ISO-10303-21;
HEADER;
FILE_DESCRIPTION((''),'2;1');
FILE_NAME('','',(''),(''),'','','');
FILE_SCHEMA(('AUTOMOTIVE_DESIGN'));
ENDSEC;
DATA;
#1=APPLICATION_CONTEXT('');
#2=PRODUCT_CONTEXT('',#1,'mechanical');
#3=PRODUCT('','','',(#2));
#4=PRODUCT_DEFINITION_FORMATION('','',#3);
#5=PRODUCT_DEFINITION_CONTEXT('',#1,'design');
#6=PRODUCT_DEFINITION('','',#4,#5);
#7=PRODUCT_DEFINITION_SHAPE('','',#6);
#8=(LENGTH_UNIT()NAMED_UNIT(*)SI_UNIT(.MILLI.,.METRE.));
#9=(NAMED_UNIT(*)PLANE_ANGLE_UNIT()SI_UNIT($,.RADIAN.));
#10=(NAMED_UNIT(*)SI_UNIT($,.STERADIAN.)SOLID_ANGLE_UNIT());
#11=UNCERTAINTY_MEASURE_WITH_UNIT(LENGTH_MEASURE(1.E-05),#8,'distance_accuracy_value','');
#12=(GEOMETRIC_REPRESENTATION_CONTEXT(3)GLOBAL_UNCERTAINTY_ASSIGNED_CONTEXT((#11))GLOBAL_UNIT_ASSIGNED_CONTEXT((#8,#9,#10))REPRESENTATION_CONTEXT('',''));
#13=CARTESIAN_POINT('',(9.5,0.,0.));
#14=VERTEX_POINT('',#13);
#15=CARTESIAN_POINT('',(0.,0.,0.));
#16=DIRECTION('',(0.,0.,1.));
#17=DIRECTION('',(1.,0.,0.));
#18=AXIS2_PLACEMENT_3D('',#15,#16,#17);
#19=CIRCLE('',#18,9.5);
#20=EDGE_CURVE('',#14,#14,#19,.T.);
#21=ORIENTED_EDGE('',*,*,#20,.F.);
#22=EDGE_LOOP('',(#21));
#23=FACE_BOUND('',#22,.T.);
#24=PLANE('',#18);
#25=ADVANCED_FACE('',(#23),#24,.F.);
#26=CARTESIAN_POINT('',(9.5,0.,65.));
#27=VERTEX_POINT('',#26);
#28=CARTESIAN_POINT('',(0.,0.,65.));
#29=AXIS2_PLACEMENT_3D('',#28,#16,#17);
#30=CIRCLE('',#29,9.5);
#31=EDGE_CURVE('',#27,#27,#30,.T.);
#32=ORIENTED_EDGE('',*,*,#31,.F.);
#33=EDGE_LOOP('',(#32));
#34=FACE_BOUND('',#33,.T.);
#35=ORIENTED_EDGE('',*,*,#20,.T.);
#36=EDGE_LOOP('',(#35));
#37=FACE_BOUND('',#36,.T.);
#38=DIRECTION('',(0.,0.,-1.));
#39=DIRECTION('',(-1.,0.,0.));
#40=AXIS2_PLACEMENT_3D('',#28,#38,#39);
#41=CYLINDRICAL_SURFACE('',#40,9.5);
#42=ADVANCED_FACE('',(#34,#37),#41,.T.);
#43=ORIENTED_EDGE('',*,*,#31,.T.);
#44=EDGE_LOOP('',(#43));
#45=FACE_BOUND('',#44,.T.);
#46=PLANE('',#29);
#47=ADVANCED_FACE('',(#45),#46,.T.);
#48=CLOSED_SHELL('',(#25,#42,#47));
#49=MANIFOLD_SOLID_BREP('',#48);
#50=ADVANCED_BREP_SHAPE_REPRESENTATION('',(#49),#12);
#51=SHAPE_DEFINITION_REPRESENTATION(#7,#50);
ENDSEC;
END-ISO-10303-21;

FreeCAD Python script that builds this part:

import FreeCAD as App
import Part
import Sketcher
from FreeCAD import Vector

doc = App.newDocument("Part")
body = doc.addObject("PartDesign::Body", "Body")

sketch1 = body.newObject("Sketcher::SketchObject", "Sketch")
sketch1.AttachmentSupport = (doc.getObject("XY_Plane"), [""])
sketch1.MapMode = "FlatFace"
sketch1.addGeometry(Part.Circle(Vector(0, 0, 0), Vector(0, 0, 1), 10), False)
sketch1.addConstraint([
    Sketcher.Constraint("Coincident", 0, 3, -1, 1),
    Sketcher.Constraint("Diameter", 0, 19.0),
])
pad1 = body.newObject("PartDesign::Pad", "Pad")
pad1.Profile = sketch1
pad1.Length = 65

doc.recompute()
